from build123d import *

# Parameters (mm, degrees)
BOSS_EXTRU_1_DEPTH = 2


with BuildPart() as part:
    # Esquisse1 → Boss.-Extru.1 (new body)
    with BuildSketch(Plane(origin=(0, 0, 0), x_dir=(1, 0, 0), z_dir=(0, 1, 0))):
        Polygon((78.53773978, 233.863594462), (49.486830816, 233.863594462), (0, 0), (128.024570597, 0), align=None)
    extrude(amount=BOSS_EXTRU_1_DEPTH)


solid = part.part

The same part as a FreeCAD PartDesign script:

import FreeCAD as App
import Part
import Sketcher
from FreeCAD import Vector
Q = App.Units.Quantity


def add_polygon(sketch, points):
    """Adds a closed chain of lines whose ends are joined by coincident constraints."""
    first, n = sketch.GeometryCount, len(points)
    for a, b in zip(points, points[1:] + points[:1]):
        sketch.addGeometry(Part.LineSegment(App.Vector(*a, 0), App.Vector(*b, 0)), False)
    for i in range(n):
        sketch.addConstraint(Sketcher.Constraint("Coincident", first + i, 2, first + (i + 1) % n, 1))

doc = App.newDocument("Part")
body = doc.addObject("PartDesign::Body", "Body")

# Sketch on XZ plane
sketch1 = doc.addObject("Sketcher::SketchObject", "Sketch")
body.addObject(sketch1)
sketch1.AttachmentSupport = (doc.XZ_Plane, [""])
sketch1.MapMode = "FlatFace"
add_polygon(sketch1, [(79, -234), (49, -234), (0, 0), (128, 0)])  # lines 0-3
sketch1.addConstraint([
    Sketcher.Constraint("Horizontal", 0),
    Sketcher.Constraint("Horizontal", 2),
    Sketcher.Constraint("Coincident", 1, 2, -1, 1),
    Sketcher.Constraint("Equal", 1, 3),
    Sketcher.Constraint("DistanceX", 0, 2, 0, 1, Q("29.050909 mm")),
    Sketcher.Constraint("DistanceX", 2, 1, 2, 2, Q("128.024571 mm")),
    Sketcher.Constraint("Distance", 1, Q("239.042103 mm")),
])
pad1 = doc.addObject("PartDesign::Pad", "Pad")
body.addObject(pad1)
pad1.Profile = sketch1
pad1.Length = 2
pad1.Reversed = True

doc.recompute()
